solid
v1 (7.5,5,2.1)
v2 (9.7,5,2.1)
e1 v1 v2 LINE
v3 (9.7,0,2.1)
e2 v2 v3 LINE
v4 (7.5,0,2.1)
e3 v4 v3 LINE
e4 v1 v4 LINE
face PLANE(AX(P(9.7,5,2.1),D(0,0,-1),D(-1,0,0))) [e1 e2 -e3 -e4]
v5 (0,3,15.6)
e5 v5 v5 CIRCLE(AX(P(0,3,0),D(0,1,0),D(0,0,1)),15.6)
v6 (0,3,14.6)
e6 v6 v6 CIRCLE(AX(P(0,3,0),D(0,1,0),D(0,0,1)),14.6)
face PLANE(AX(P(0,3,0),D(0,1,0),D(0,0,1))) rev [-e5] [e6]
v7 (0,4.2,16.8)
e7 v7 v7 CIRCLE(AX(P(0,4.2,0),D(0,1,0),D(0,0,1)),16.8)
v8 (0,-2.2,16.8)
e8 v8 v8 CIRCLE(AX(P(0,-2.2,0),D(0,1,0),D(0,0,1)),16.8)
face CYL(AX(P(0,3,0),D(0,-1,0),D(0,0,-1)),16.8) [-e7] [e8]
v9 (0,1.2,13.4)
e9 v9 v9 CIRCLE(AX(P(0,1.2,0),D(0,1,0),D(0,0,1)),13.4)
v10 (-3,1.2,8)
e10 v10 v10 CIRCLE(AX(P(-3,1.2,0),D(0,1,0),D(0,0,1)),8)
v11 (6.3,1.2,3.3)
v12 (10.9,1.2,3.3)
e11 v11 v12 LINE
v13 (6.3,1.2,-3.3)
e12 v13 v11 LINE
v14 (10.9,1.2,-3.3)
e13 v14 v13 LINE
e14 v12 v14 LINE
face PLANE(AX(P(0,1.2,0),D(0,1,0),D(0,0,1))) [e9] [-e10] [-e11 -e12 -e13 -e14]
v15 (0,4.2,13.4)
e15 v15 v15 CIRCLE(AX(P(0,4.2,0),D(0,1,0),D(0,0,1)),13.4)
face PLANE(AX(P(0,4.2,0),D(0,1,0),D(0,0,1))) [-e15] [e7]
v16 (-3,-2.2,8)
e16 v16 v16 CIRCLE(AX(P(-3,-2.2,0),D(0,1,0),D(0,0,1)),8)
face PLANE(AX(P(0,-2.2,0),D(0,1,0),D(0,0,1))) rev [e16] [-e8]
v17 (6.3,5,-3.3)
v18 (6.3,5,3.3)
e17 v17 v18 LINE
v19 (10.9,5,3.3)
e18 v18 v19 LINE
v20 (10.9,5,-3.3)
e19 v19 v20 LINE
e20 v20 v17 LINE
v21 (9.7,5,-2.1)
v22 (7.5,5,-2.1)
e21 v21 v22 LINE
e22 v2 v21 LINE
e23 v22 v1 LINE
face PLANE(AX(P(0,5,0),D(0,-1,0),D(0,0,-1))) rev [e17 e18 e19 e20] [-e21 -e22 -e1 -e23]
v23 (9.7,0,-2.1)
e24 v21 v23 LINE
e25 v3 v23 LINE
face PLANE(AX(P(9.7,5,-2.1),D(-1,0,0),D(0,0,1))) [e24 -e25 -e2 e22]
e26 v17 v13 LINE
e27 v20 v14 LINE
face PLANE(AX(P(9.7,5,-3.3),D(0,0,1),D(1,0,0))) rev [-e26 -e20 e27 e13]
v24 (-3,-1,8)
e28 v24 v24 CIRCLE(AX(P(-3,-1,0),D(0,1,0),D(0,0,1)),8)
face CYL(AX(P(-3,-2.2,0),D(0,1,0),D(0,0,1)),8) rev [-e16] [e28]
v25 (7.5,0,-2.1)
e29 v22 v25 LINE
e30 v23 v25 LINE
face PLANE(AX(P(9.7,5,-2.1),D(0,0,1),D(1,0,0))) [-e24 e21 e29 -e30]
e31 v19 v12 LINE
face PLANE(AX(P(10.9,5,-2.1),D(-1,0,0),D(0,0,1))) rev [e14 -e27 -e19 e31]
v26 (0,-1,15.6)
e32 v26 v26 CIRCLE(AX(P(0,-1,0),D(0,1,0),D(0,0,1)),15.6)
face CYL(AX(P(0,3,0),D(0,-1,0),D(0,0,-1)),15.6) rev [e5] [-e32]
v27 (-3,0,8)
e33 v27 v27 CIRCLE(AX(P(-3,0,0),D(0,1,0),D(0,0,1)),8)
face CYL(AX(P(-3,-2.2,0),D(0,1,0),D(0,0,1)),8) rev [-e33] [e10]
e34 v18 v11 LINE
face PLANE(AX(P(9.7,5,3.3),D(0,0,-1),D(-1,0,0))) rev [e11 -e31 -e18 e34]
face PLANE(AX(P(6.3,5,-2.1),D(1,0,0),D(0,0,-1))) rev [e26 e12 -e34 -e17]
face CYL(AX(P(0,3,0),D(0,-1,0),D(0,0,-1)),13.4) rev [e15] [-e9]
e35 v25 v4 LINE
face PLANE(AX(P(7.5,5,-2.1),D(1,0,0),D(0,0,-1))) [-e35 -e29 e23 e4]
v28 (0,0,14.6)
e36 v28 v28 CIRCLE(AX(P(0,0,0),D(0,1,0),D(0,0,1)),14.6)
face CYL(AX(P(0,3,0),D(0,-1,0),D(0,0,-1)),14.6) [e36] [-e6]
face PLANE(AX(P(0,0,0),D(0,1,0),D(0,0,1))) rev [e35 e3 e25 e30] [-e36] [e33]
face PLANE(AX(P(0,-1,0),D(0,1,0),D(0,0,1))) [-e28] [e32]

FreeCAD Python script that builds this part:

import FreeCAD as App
import Part
import Sketcher

V = App.Vector


def faces_at(feature, points):
    """Names of the faces that lie closest to the given points."""
    faces = feature.Shape.Faces
    near = lambda p: min(range(len(faces)), key=lambda i: faces[i].distToShape(Part.Vertex(*p))[0])
    return sorted({f"Face{near(p) + 1}" for p in points})

doc = App.newDocument("Part")
params = doc.addObject("Spreadsheet::Sheet", "Params")
for row, (alias, value) in enumerate([
    ("sketch1_diameter", "29.2 mm"),
    ("pad1_length", "3 mm"),
    ("thickness_wall", "1 mm"),
    ("sketch2_width", "2.2 mm"),
    ("sketch2_height", "4.2 mm"),
    ("pad2_length", "5 mm"),
    ("thickness2_wall", "1.2 mm"),
    ("sketch3_diameter", "16 mm"),
], start=1):
    params.set(f"A{row}", alias)
    params.set(f"B{row}", "=" + value)
    params.setAlias(f"B{row}", alias)

body = doc.addObject("PartDesign::Body", "Body")

# Sketch on XZ plane
sketch1 = body.newObject("Sketcher::SketchObject", "Sketch")
sketch1.AttachmentSupport = (doc.getObject("XZ_Plane"), [""])
sketch1.MapMode = "FlatFace"
sketch1.addGeometry(Part.Circle(V(0, 0, 0), V(0, 0, 1), 15), False)
sketch1.addConstraint(Sketcher.Constraint("Coincident", 0, 3, -1, 1))
sketch1.addConstraint(Sketcher.Constraint("Diameter", 0, 29.2))
sketch1.setExpression("Constraints[1]", "Params.sketch1_diameter")
pad1 = body.newObject("PartDesign::Pad", "Pad")
pad1.Profile = sketch1
pad1.setExpression("Length", "Params.pad1_length")
pad1.Reversed = True
doc.recompute()

thickness = body.newObject("PartDesign::Thickness", "Thickness")
thickness.Base = (pad1, faces_at(pad1, [(0, 3, 0)]))
thickness.setExpression("Value", "Params.thickness_wall")
thickness.Reversed = False
thickness.Join = "Intersection"

# Sketch on XZ plane
sketch2 = body.newObject("Sketcher::SketchObject", "Sketch001")
sketch2.AttachmentSupport = (doc.getObject("XZ_Plane"), [""])
sketch2.MapMode = "FlatFace"
sketch2.addGeometry(Part.LineSegment(V(7.5, -2.1, 0), V(7.5, 2.1, 0)), False)
sketch2.addGeometry(Part.LineSegment(V(7.5, 2.1, 0), V(9.7, 2.1, 0)), False)
sketch2.addGeometry(Part.LineSegment(V(9.7, 2.1, 0), V(9.7, -2.1, 0)), False)
sketch2.addGeometry(Part.LineSegment(V(9.7, -2.1, 0), V(7.5, -2.1, 0)), False)
sketch2.addConstraint(Sketcher.Constraint("Coincident", 0, 2, 1, 1))
sketch2.addConstraint(Sketcher.Constraint("Coincident", 1, 2, 2, 1))
sketch2.addConstraint(Sketcher.Constraint("Coincident", 2, 2, 3, 1))
sketch2.addConstraint(Sketcher.Constraint("Coincident", 3, 2, 0, 1))
sketch2.addConstraint(Sketcher.Constraint("Vertical", 0))
sketch2.addConstraint(Sketcher.Constraint("Horizontal", 1))
sketch2.addConstraint(Sketcher.Constraint("Vertical", 2))
sketch2.addConstraint(Sketcher.Constraint("Horizontal", 3))
sketch2.addConstraint(Sketcher.Constraint("DistanceX", 1, 1, 1, 2, 2.2))
sketch2.addConstraint(Sketcher.Constraint("DistanceY", 0, 1, 0, 2, 4.2))
sketch2.addConstraint(Sketcher.Constraint("DistanceX", -1, 1, 0, 2, 7.5))
sketch2.addConstraint(Sketcher.Constraint("DistanceY", -1, 1, 0, 2, 2.1))
sketch2.setExpression("Constraints[8]", "Params.sketch2_width")
sketch2.setExpression("Constraints[9]", "Params.sketch2_height")
pad2 = body.newObject("PartDesign::Pad", "Pad001")
pad2.Profile = sketch2
pad2.setExpression("Length", "Params.pad2_length")
pad2.Reversed = True
doc.recompute()

thickness2 = body.newObject("PartDesign::Thickness", "Thickness001")
thickness2.Base = (pad2, faces_at(pad2, [(8.6, 5, 0)]))
thickness2.setExpression("Value", "Params.thickness2_wall")
thickness2.Reversed = False
thickness2.Join = "Intersection"

# Sketch on XZ plane
sketch3 = body.newObject("Sketcher::SketchObject", "Sketch002")
sketch3.AttachmentSupport = (doc.getObject("XZ_Plane"), [""])
sketch3.MapMode = "FlatFace"
sketch3.AttachmentOffset = App.Placement(V(0, 0, -1.2), App.Rotation())
sketch3.addGeometry(Part.Circle(V(-3, 0, 0), V(0, 0, 1), 8), False)
sketch3.addConstraint(Sketcher.Constraint("PointOnObject", 0, 3, -1))
sketch3.addConstraint(Sketcher.Constraint("Diameter", 0, 16.0))
sketch3.addConstraint(Sketcher.Constraint("DistanceX", 0, 3, -1, 1, 3.0))
sketch3.setExpression("Constraints[1]", "Params.sketch3_diameter")
pocket1 = body.newObject("PartDesign::Pocket", "Pocket")
pocket1.Profile = sketch3
pocket1.Type = "ThroughAll"
pocket1.Reversed = True

doc.recompute()
